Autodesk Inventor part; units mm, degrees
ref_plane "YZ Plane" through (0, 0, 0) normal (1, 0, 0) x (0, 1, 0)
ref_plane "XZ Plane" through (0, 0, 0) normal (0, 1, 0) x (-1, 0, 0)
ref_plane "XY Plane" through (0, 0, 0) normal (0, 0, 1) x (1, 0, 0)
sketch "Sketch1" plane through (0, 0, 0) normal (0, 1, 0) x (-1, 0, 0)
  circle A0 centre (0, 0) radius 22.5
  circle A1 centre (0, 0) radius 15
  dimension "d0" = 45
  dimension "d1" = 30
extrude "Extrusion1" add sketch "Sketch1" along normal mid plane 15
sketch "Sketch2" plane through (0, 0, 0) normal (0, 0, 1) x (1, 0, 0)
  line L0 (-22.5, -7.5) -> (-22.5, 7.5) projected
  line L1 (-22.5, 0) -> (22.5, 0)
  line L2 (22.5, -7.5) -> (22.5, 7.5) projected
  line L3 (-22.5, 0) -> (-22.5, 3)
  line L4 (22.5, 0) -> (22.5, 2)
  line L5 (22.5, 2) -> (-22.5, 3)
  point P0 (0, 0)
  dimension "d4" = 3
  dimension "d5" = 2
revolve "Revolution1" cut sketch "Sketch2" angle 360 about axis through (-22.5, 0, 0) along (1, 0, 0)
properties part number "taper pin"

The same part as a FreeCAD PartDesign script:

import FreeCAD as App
import Part
import Sketcher


def add_polygon(sketch, points):
    """Adds a closed chain of lines whose ends are joined by coincident constraints."""
    first, n = sketch.GeometryCount, len(points)
    for a, b in zip(points, points[1:] + points[:1]):
        sketch.addGeometry(Part.LineSegment(App.Vector(*a, 0), App.Vector(*b, 0)), False)
    for i in range(n):
        sketch.addConstraint(Sketcher.Constraint("Coincident", first + i, 2, first + (i + 1) % n, 1))

doc = App.newDocument("Part")
body = doc.addObject("PartDesign::Body", "Body")

# Sketch on XZ plane
sketch1 = body.newObject("Sketcher::SketchObject", "Sketch")
sketch1.AttachmentSupport = (doc.getObject("XZ_Plane"), [""])
sketch1.MapMode = "FlatFace"
sketch1.addGeometry([
    Part.Circle(App.Vector(0, 0, 0), App.Vector(0, 0, 1), 22),
    Part.Circle(App.Vector(0, 0, 0), App.Vector(0, 0, 1), 15),
], False)
sketch1.addConstraint([
    Sketcher.Constraint("Coincident", 0, 3, -1, 1),
    Sketcher.Constraint("Coincident", 1, 3, -1, 1),
    Sketcher.Constraint("Diameter", 0, 45.0),
    Sketcher.Constraint("Diameter", 1, 30.0),
])
pad1 = body.newObject("PartDesign::Pad", "Pad")
pad1.Profile = sketch1
pad1.Length = 15
pad1.Midplane = True

# Sketch on XY plane
sketch2 = body.newObject("Sketcher::SketchObject", "Sketch001")
sketch2.AttachmentSupport = (doc.getObject("XY_Plane"), [""])
sketch2.MapMode = "FlatFace"
add_polygon(sketch2, [(-22.5, 3), (-22.5, 0), (22.5, 0), (22.5, 2)])  # lines 0-3
sketch2.addConstraint([
    Sketcher.Constraint("Vertical", 0),
    Sketcher.Constraint("Horizontal", 1),
    Sketcher.Constraint("Vertical", 2),
    Sketcher.Constraint("Symmetric", 0, 2, 1, 2, -1, 1),
    Sketcher.Constraint("DistanceY", 0, 2, 0, 1, 3.0),
    Sketcher.Constraint("DistanceY", 2, 1, 2, 2, 2.0),
    Sketcher.Constraint("DistanceX", 1, 1, 1, 2, 45.0),
])
groove = body.newObject("PartDesign::Groove", "Groove")
groove.Profile = sketch2
groove.ReferenceAxis = (sketch2, ["H_Axis"])
groove.Angle = 360

doc.recompute()
